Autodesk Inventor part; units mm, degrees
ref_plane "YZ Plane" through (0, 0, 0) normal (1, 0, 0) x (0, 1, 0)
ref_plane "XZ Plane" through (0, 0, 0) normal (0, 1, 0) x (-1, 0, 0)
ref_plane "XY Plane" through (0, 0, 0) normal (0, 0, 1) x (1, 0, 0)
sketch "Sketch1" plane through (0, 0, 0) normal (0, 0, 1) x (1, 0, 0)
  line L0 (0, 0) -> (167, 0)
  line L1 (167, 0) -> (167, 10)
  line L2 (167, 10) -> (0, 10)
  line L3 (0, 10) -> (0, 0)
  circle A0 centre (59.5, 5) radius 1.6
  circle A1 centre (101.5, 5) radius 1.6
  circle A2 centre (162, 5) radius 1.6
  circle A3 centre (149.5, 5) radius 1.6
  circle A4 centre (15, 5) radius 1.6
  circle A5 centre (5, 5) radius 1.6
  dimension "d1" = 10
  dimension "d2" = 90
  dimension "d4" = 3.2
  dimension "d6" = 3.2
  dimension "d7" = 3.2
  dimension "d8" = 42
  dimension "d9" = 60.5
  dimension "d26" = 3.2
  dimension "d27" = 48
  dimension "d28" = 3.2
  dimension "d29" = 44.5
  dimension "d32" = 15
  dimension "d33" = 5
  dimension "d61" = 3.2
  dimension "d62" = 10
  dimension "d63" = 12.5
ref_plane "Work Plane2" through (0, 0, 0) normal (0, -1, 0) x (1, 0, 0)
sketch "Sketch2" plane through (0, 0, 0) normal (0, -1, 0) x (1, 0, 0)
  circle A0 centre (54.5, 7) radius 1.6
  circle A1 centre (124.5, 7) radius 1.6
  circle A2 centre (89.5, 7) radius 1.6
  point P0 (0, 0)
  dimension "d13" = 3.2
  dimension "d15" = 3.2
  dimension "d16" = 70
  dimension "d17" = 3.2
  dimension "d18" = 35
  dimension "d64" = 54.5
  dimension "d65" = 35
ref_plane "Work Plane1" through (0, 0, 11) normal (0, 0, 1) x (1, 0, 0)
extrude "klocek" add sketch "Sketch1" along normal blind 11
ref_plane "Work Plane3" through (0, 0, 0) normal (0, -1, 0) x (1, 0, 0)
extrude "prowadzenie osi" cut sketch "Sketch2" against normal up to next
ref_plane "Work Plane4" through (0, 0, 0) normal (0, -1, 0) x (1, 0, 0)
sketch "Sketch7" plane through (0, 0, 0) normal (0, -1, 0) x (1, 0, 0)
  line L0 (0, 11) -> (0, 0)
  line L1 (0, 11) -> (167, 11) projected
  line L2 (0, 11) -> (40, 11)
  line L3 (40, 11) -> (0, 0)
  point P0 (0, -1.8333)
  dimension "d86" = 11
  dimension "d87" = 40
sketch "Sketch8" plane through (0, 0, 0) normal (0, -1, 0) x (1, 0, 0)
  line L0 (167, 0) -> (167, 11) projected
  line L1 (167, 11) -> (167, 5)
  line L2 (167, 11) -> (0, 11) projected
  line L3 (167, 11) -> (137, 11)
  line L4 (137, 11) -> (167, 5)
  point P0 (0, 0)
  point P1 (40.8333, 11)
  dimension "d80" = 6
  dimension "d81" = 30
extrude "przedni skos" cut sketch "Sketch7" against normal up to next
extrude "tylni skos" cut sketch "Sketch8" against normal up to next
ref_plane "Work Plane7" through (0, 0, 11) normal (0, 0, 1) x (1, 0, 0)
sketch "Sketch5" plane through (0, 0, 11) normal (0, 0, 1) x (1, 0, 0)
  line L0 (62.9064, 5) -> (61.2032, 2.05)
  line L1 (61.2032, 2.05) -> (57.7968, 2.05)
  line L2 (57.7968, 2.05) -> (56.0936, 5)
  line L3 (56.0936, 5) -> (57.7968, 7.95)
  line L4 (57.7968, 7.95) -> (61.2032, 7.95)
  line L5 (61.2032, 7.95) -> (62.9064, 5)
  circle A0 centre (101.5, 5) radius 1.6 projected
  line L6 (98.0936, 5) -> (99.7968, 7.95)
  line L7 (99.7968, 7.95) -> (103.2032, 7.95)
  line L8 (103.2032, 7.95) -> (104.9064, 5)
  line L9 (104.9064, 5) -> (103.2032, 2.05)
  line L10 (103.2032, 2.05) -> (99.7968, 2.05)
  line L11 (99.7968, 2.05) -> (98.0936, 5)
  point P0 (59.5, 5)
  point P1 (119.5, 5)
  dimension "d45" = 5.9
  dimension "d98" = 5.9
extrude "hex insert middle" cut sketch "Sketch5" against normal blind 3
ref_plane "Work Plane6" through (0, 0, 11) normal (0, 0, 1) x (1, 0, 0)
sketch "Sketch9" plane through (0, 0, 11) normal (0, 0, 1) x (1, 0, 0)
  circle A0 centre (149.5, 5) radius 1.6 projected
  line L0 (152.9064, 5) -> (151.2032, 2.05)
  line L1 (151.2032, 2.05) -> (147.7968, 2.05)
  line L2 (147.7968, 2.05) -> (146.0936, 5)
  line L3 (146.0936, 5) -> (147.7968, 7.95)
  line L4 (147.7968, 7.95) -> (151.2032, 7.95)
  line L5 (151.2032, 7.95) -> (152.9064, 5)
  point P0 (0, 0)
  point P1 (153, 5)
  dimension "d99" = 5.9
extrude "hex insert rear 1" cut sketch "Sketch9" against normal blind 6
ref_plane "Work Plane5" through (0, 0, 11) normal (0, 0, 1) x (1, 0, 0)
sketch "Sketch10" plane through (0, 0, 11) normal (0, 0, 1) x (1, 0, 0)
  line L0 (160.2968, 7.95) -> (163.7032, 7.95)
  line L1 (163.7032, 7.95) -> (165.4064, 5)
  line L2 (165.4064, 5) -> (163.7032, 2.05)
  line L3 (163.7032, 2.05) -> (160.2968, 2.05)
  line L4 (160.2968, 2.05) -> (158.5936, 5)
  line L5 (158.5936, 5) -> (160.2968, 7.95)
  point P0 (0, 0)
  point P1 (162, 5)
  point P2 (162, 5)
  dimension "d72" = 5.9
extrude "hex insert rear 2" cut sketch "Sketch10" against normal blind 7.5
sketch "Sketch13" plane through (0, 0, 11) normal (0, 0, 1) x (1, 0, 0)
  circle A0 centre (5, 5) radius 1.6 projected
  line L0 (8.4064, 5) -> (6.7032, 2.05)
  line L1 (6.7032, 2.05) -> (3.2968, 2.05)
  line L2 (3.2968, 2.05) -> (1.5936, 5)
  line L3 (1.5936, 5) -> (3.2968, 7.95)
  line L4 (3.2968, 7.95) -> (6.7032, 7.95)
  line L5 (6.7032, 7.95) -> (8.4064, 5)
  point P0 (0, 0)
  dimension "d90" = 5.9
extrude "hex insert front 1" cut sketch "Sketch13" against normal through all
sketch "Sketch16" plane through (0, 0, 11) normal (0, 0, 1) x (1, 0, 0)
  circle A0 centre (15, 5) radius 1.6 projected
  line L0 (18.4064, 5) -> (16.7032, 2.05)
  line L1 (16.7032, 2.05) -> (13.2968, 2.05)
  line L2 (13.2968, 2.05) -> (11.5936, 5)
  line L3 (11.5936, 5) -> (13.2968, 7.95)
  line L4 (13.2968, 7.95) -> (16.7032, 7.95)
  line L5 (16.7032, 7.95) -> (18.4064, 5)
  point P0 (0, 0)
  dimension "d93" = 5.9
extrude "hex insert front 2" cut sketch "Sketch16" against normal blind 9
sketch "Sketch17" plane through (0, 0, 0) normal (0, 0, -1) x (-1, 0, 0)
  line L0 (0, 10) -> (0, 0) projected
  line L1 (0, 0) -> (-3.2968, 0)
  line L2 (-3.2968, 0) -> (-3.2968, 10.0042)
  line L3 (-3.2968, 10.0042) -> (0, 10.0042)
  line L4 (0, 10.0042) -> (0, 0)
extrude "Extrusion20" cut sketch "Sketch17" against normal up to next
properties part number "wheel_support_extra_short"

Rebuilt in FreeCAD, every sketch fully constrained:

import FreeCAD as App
import Part
import Sketcher
Q = App.Units.Quantity


def add_polygon(sketch, points):
    """Adds a closed chain of lines whose ends are joined by coincident constraints."""
    first, n = sketch.GeometryCount, len(points)
    for a, b in zip(points, points[1:] + points[:1]):
        sketch.addGeometry(Part.LineSegment(App.Vector(*a, 0), App.Vector(*b, 0)), False)
    for i in range(n):
        sketch.addConstraint(Sketcher.Constraint("Coincident", first + i, 2, first + (i + 1) % n, 1))

doc = App.newDocument("Part")
body = doc.addObject("PartDesign::Body", "Body")

sketch1 = doc.addObject("Sketcher::SketchObject", "Sketch")
body.addObject(sketch1)
sketch1.AttachmentSupport = (doc.XY_Plane, [""])
sketch1.MapMode = "FlatFace"
add_polygon(sketch1, [(0, 10), (0, 0), (167, 0), (167, 10)])
sketch1.addGeometry(Part.Circle(App.Vector(5, 5, 0), App.Vector(0, 0, 1), 1.6), False)
sketch1.addGeometry(Part.Circle(App.Vector(15, 5, 0), App.Vector(0, 0, 1), 1.6), False)
sketch1.addGeometry(Part.Circle(App.Vector(59.5, 5, 0), App.Vector(0, 0, 1), 1.6), False)
sketch1.addGeometry(Part.Circle(App.Vector(101.5, 5, 0), App.Vector(0, 0, 1), 1.6), False)
sketch1.addGeometry(Part.Circle(App.Vector(149.5, 5, 0), App.Vector(0, 0, 1), 1.6), False)
sketch1.addGeometry(Part.Circle(App.Vector(162, 5, 0), App.Vector(0, 0, 1), 1.6), False)
sketch1.addConstraint(Sketcher.Constraint("Vertical", 0))
sketch1.addConstraint(Sketcher.Constraint("Horizontal", 1))
sketch1.addConstraint(Sketcher.Constraint("Vertical", 2))
sketch1.addConstraint(Sketcher.Constraint("Horizontal", 3))
sketch1.addConstraint(Sketcher.Constraint("Coincident", 0, 2, -1, 1))
sketch1.addConstraint(Sketcher.Constraint("Equal", 4, 5))
sketch1.addConstraint(Sketcher.Constraint("Equal", 5, 6))
sketch1.addConstraint(Sketcher.Constraint("Equal", 6, 7))
sketch1.addConstraint(Sketcher.Constraint("Equal", 7, 8))
sketch1.addConstraint(Sketcher.Constraint("Equal", 8, 9))
sketch1.addConstraint(Sketcher.Constraint("Horizontal", 4, 3, 5, 3))
sketch1.addConstraint(Sketcher.Constraint("Horizontal", 5, 3, 6, 3))
sketch1.addConstraint(Sketcher.Constraint("Horizontal", 6, 3, 7, 3))
sketch1.addConstraint(Sketcher.Constraint("Horizontal", 7, 3, 8, 3))
sketch1.addConstraint(Sketcher.Constraint("Horizontal", 8, 3, 9, 3))
sketch1.addConstraint(Sketcher.Constraint("Diameter", 4, 3.2))
sketch1.addConstraint(Sketcher.Constraint("DistanceY", 0, 2, 0, 1, 10.0))
sketch1.addConstraint(Sketcher.Constraint("DistanceX", -1, 1, 4, 3, 5.0))
sketch1.addConstraint(Sketcher.Constraint("DistanceY", -1, 1, 4, 3, 5.0))
sketch1.addConstraint(Sketcher.Constraint("DistanceX", -1, 1, 5, 3, 15.0))
sketch1.addConstraint(Sketcher.Constraint("DistanceX", 6, 3, 7, 3, 42.0))
sketch1.addConstraint(Sketcher.Constraint("DistanceX", 7, 3, 8, 3, 48.0))
sketch1.addConstraint(Sketcher.Constraint("DistanceX", 9, 3, 1, 2, 5.0))
sketch1.addConstraint(Sketcher.Constraint("DistanceX", 5, 3, 6, 3, 44.5))
sketch1.addConstraint(Sketcher.Constraint("DistanceX", 8, 3, 9, 3, 12.5))
pad1 = doc.addObject("PartDesign::Pad", "Pad")
body.addObject(pad1)
pad1.Profile = sketch1
pad1.Length = 11

sketch2 = doc.addObject("Sketcher::SketchObject", "Sketch001")
body.addObject(sketch2)
sketch2.AttachmentSupport = (doc.XZ_Plane, [""])
sketch2.MapMode = "FlatFace"
sketch2.addGeometry(Part.Circle(App.Vector(54.5, 7, 0), App.Vector(0, 0, 1), 1.6), False)
sketch2.addGeometry(Part.Circle(App.Vector(124.5, 7, 0), App.Vector(0, 0, 1), 1.6), False)
sketch2.addGeometry(Part.Circle(App.Vector(89.5, 7, 0), App.Vector(0, 0, 1), 1.6), False)
sketch2.addConstraint(Sketcher.Constraint("Equal", 0, 1))
sketch2.addConstraint(Sketcher.Constraint("Equal", 1, 2))
sketch2.addConstraint(Sketcher.Constraint("Horizontal", 0, 3, 1, 3))
sketch2.addConstraint(Sketcher.Constraint("Horizontal", 1, 3, 2, 3))
sketch2.addConstraint(Sketcher.Constraint("Diameter", 0, 3.2))
sketch2.addConstraint(Sketcher.Constraint("DistanceX", 0, 3, 1, 3, 70.0))
sketch2.addConstraint(Sketcher.Constraint("DistanceX", 0, 3, 2, 3, 35.0))
sketch2.addConstraint(Sketcher.Constraint("DistanceX", -1, 1, 0, 3, 54.5))
sketch2.addConstraint(Sketcher.Constraint("DistanceY", -1, 1, 0, 3, 7.0))
pocket1 = doc.addObject("PartDesign::Pocket", "Pocket")
body.addObject(pocket1)
pocket1.Profile = sketch2
pocket1.Type = "UpToFirst"

sketch3 = doc.addObject("Sketcher::SketchObject", "Sketch002")
body.addObject(sketch3)
sketch3.AttachmentSupport = (doc.XZ_Plane, [""])
sketch3.MapMode = "FlatFace"
add_polygon(sketch3, [(40, 11), (0, 11), (0, 0)])
sketch3.addConstraint(Sketcher.Constraint("Horizontal", 0))
sketch3.addConstraint(Sketcher.Constraint("Vertical", 1))
sketch3.addConstraint(Sketcher.Constraint("Coincident", 1, 2, -1, 1))
sketch3.addConstraint(Sketcher.Constraint("DistanceX", 0, 2, 0, 1, 40.0))
sketch3.addConstraint(Sketcher.Constraint("DistanceY", 1, 2, 1, 1, 11.0))
pocket2 = doc.addObject("PartDesign::Pocket", "Pocket001")
body.addObject(pocket2)
pocket2.Profile = sketch3
pocket2.Type = "UpToFirst"

sketch4 = doc.addObject("Sketcher::SketchObject", "Sketch003")
body.addObject(sketch4)
sketch4.AttachmentSupport = (doc.XZ_Plane, [""])
sketch4.MapMode = "FlatFace"
add_polygon(sketch4, [(137, 11), (167, 5), (167, 11)])
sketch4.addConstraint(Sketcher.Constraint("Vertical", 1))
sketch4.addConstraint(Sketcher.Constraint("Horizontal", 2))
sketch4.addConstraint(Sketcher.Constraint("DistanceX", 2, 2, 2, 1, 30.0))
sketch4.addConstraint(Sketcher.Constraint("DistanceY", 1, 1, 1, 2, 6.0))
sketch4.addConstraint(Sketcher.Constraint("DistanceX", -1, 1, 0, 2, 167.0))
sketch4.addConstraint(Sketcher.Constraint("DistanceY", -1, 1, 0, 2, 5.0))
pocket3 = doc.addObject("PartDesign::Pocket", "Pocket002")
body.addObject(pocket3)
pocket3.Profile = sketch4
pocket3.Type = "UpToFirst"

sketch5 = doc.addObject("Sketcher::SketchObject", "Sketch004")
body.addObject(sketch5)
sketch5.AttachmentSupport = (doc.XY_Plane, [""])
sketch5.MapMode = "FlatFace"
sketch5.AttachmentOffset = App.Placement(App.Vector(0, 0, 11), App.Rotation())
add_polygon(sketch5, [(61.2032, 2.05), (62.9064, 5), (61.2032, 7.95), (57.7968, 7.95), (56.0936, 5), (57.7968, 2.05)])
add_polygon(sketch5, [(99.7968, 7.95), (98.0936, 5), (99.7968, 2.05), (103.2032, 2.05), (104.9064, 5), (103.2032, 7.95)])
sketch5.addGeometry(Part.Circle(App.Vector(101.5, 5, 0), App.Vector(0, 0, 1), 1.6), False)
sketch5.addConstraint(Sketcher.Constraint("Horizontal", 2))
sketch5.addConstraint(Sketcher.Constraint("Horizontal", 5))
sketch5.addConstraint(Sketcher.Constraint("Horizontal", 8))
sketch5.addConstraint(Sketcher.Constraint("Horizontal", 11))
sketch5.addConstraint(Sketcher.Constraint("Parallel", 0, 3))
sketch5.addConstraint(Sketcher.Constraint("Parallel", 1, 4))
sketch5.addConstraint(Sketcher.Constraint("Parallel", 3, 6))
sketch5.addConstraint(Sketcher.Constraint("Parallel", 4, 7))
sketch5.addConstraint(Sketcher.Constraint("Parallel", 6, 9))
sketch5.addConstraint(Sketcher.Constraint("Parallel", 7, 10))
sketch5.addConstraint(Sketcher.Constraint("Horizontal", 12, 3, 0, 2))
sketch5.addConstraint(Sketcher.Constraint("Horizontal", 0, 2, 3, 2))
sketch5.addConstraint(Sketcher.Constraint("Horizontal", 3, 2, 6, 2))
sketch5.addConstraint(Sketcher.Constraint("Horizontal", 5, 2, 7, 2))
sketch5.addConstraint(Sketcher.Constraint("Horizontal", 6, 2, 9, 2))
sketch5.addConstraint(Sketcher.Constraint("Horizontal", 2, 2, 10, 2))
sketch5.addConstraint(Sketcher.Constraint("Vertical", 2, 2, 4, 2))
sketch5.addConstraint(Sketcher.Constraint("Vertical", 1, 2, 5, 2))
sketch5.addConstraint(Sketcher.Constraint("Equal", 5, 8))
sketch5.addConstraint(Sketcher.Constraint("Diameter", 12, 3.2))
sketch5.addConstraint(Sketcher.Constraint("DistanceY", 4, 2, 2, 2, 5.9))
sketch5.addConstraint(Sketcher.Constraint("Angle", 0, Q("59.9998 deg")))
sketch5.addConstraint(Sketcher.Constraint("DistanceY", -1, 1, 12, 3, 5.0))
sketch5.addConstraint(Sketcher.Constraint("DistanceX", 5, 2, 8, 2, 42.0))
sketch5.addConstraint(Sketcher.Constraint("DistanceX", -1, 1, 12, 3, 101.5))
sketch5.addConstraint(Sketcher.Constraint("DistanceX", 2, 2, 2, 1, 3.4064))
sketch5.addConstraint(Sketcher.Constraint("DistanceX", -1, 1, 0, 2, 62.9064))
pocket4 = doc.addObject("PartDesign::Pocket", "Pocket003")
body.addObject(pocket4)
pocket4.Profile = sketch5
pocket4.Length = 3

sketch6 = doc.addObject("Sketcher::SketchObject", "Sketch005")
body.addObject(sketch6)
sketch6.AttachmentSupport = (doc.XY_Plane, [""])
sketch6.MapMode = "FlatFace"
sketch6.AttachmentOffset = App.Placement(App.Vector(0, 0, 11), App.Rotation())
add_polygon(sketch6, [(151.2032, 2.05), (152.9064, 5), (151.2032, 7.95), (147.7968, 7.95), (146.0936, 5), (147.7968, 2.05)])
sketch6.addGeometry(Part.Circle(App.Vector(149.5, 5, 0), App.Vector(0, 0, 1), 1.6), False)
sketch6.addConstraint(Sketcher.Constraint("Horizontal", 2))
sketch6.addConstraint(Sketcher.Constraint("Horizontal", 5))
sketch6.addConstraint(Sketcher.Constraint("Parallel", 0, 3))
sketch6.addConstraint(Sketcher.Constraint("Parallel", 1, 4))
sketch6.addConstraint(Sketcher.Constraint("Horizontal", 6, 3, 0, 2))
sketch6.addConstraint(Sketcher.Constraint("Horizontal", 0, 2, 3, 2))
sketch6.addConstraint(Sketcher.Constraint("Vertical", 2, 2, 4, 2))
sketch6.addConstraint(Sketcher.Constraint("Vertical", 1, 2, 5, 2))
sketch6.addConstraint(Sketcher.Constraint("Diameter", 6, 3.2))
sketch6.addConstraint(Sketcher.Constraint("DistanceY", 4, 2, 2, 2, 5.9))
sketch6.addConstraint(Sketcher.Constraint("Angle", 0, Q("59.9998 deg")))
sketch6.addConstraint(Sketcher.Constraint("DistanceY", -1, 1, 6, 3, 5.0))
sketch6.addConstraint(Sketcher.Constraint("DistanceX", -1, 1, 6, 3, 149.5))
sketch6.addConstraint(Sketcher.Constraint("DistanceX", 2, 2, 2, 1, 3.4064))
sketch6.addConstraint(Sketcher.Constraint("DistanceX", -1, 1, 0, 2, 152.9064))
pocket5 = doc.addObject("PartDesign::Pocket", "Pocket004")
body.addObject(pocket5)
pocket5.Profile = sketch6
pocket5.Length = 6

sketch7 = doc.addObject("Sketcher::SketchObject", "Sketch006")
body.addObject(sketch7)
sketch7.AttachmentSupport = (doc.XY_Plane, [""])
sketch7.MapMode = "FlatFace"
sketch7.AttachmentOffset = App.Placement(App.Vector(0, 0, 11), App.Rotation())
add_polygon(sketch7, [(163.7032, 7.95), (160.2968, 7.95), (158.5936, 5), (160.2968, 2.05), (163.7032, 2.05), (165.4064, 5)])
sketch7.addConstraint(Sketcher.Constraint("Horizontal", 0))
sketch7.addConstraint(Sketcher.Constraint("Horizontal", 3))
sketch7.addConstraint(Sketcher.Constraint("Parallel", 1, 4))
sketch7.addConstraint(Sketcher.Constraint("Parallel", 2, 5))
sketch7.addConstraint(Sketcher.Constraint("Horizontal", 1, 2, 4, 2))
sketch7.addConstraint(Sketcher.Constraint("Vertical", 0, 2, 2, 2))
sketch7.addConstraint(Sketcher.Constraint("Vertical", 3, 2, 5, 2))
sketch7.addConstraint(Sketcher.Constraint("DistanceY", 2, 2, 0, 2, 5.9))
sketch7.addConstraint(Sketcher.Constraint("Angle", 1, Q("-120.0002 deg")))
sketch7.addConstraint(Sketcher.Constraint("DistanceY", -1, 1, 1, 2, 5.0))
sketch7.addConstraint(Sketcher.Constraint("DistanceX", 0, 2, 0, 1, 3.4064))
sketch7.addConstraint(Sketcher.Constraint("DistanceX", -1, 1, 0, 2, 160.2968))
pocket6 = doc.addObject("PartDesign::Pocket", "Pocket005")
body.addObject(pocket6)
pocket6.Profile = sketch7
pocket6.Length = 7.5

sketch8 = doc.addObject("Sketcher::SketchObject", "Sketch007")
body.addObject(sketch8)
sketch8.AttachmentSupport = (doc.XY_Plane, [""])
sketch8.MapMode = "FlatFace"
sketch8.AttachmentOffset = App.Placement(App.Vector(0, 0, 11), App.Rotation())
add_polygon(sketch8, [(6.7032, 2.05), (8.4064, 5), (6.7032, 7.95), (3.2968, 7.95), (1.5936, 5), (3.2968, 2.05)])
sketch8.addGeometry(Part.Circle(App.Vector(5, 5, 0), App.Vector(0, 0, 1), 1.6), False)
sketch8.addConstraint(Sketcher.Constraint("Horizontal", 2))
sketch8.addConstraint(Sketcher.Constraint("Horizontal", 5))
sketch8.addConstraint(Sketcher.Constraint("Parallel", 0, 3))
sketch8.addConstraint(Sketcher.Constraint("Parallel", 1, 4))
sketch8.addConstraint(Sketcher.Constraint("Horizontal", 6, 3, 0, 2))
sketch8.addConstraint(Sketcher.Constraint("Horizontal", 0, 2, 3, 2))
sketch8.addConstraint(Sketcher.Constraint("Vertical", 2, 2, 4, 2))
sketch8.addConstraint(Sketcher.Constraint("Vertical", 1, 2, 5, 2))
sketch8.addConstraint(Sketcher.Constraint("Diameter", 6, 3.2))
sketch8.addConstraint(Sketcher.Constraint("DistanceY", 4, 2, 2, 2, 5.9))
sketch8.addConstraint(Sketcher.Constraint("Angle", 0, Q("59.9998 deg")))
sketch8.addConstraint(Sketcher.Constraint("DistanceX", -1, 1, 6, 3, 5.0))
sketch8.addConstraint(Sketcher.Constraint("DistanceY", -1, 1, 6, 3, 5.0))
sketch8.addConstraint(Sketcher.Constraint("DistanceX", 2, 2, 2, 1, 3.4064))
sketch8.addConstraint(Sketcher.Constraint("DistanceX", -1, 1, 0, 2, 8.4064))
pocket7 = doc.addObject("PartDesign::Pocket", "Pocket006")
body.addObject(pocket7)
pocket7.Profile = sketch8
pocket7.Type = "ThroughAll"

sketch9 = doc.addObject("Sketcher::SketchObject", "Sketch008")
body.addObject(sketch9)
sketch9.AttachmentSupport = (doc.XY_Plane, [""])
sketch9.MapMode = "FlatFace"
sketch9.AttachmentOffset = App.Placement(App.Vector(0, 0, 11), App.Rotation())
add_polygon(sketch9, [(16.7032, 2.05), (18.4064, 5), (16.7032, 7.95), (13.2968, 7.95), (11.5936, 5), (13.2968, 2.05)])
sketch9.addGeometry(Part.Circle(App.Vector(15, 5, 0), App.Vector(0, 0, 1), 1.6), False)
sketch9.addConstraint(Sketcher.Constraint("Horizontal", 2))
sketch9.addConstraint(Sketcher.Constraint("Horizontal", 5))
sketch9.addConstraint(Sketcher.Constraint("Parallel", 0, 3))
sketch9.addConstraint(Sketcher.Constraint("Parallel", 1, 4))
sketch9.addConstraint(Sketcher.Constraint("Horizontal", 6, 3, 0, 2))
sketch9.addConstraint(Sketcher.Constraint("Horizontal", 0, 2, 3, 2))
sketch9.addConstraint(Sketcher.Constraint("Vertical", 2, 2, 4, 2))
sketch9.addConstraint(Sketcher.Constraint("Vertical", 1, 2, 5, 2))
sketch9.addConstraint(Sketcher.Constraint("Diameter", 6, 3.2))
sketch9.addConstraint(Sketcher.Constraint("DistanceY", 4, 2, 2, 2, 5.9))
sketch9.addConstraint(Sketcher.Constraint("Angle", 0, Q("59.9998 deg")))
sketch9.addConstraint(Sketcher.Constraint("DistanceX", -1, 1, 6, 3, 15.0))
sketch9.addConstraint(Sketcher.Constraint("DistanceY", -1, 1, 6, 3, 5.0))
sketch9.addConstraint(Sketcher.Constraint("DistanceX", 2, 2, 2, 1, 3.4064))
sketch9.addConstraint(Sketcher.Constraint("DistanceX", -1, 1, 0, 2, 18.4064))
pocket8 = doc.addObject("PartDesign::Pocket", "Pocket007")
body.addObject(pocket8)
pocket8.Profile = sketch9
pocket8.Length = 9

sketch10 = doc.addObject("Sketcher::SketchObject", "Sketch009")
body.addObject(sketch10)
sketch10.AttachmentSupport = (doc.XY_Plane, [""])
sketch10.MapMode = "FlatFace"
add_polygon(sketch10, [(0, 0), (0, 10.0042), (3.2968, 10.0042), (3.2968, 0)])
sketch10.addConstraint(Sketcher.Constraint("Vertical", 0))
sketch10.addConstraint(Sketcher.Constraint("Horizontal", 1))
sketch10.addConstraint(Sketcher.Constraint("Vertical", 2))
sketch10.addConstraint(Sketcher.Constraint("Horizontal", 3))
sketch10.addConstraint(Sketcher.Constraint("Coincident", 3, 2, -1, 1))
sketch10.addConstraint(Sketcher.Constraint("DistanceX", 1, 1, 1, 2, 3.2968))
sketch10.addConstraint(Sketcher.Constraint("DistanceY", 0, 1, 0, 2, 10.0042))
pocket9 = doc.addObject("PartDesign::Pocket", "Pocket008")
body.addObject(pocket9)
pocket9.Profile = sketch10
pocket9.Length = 0.9066
pocket9.Reversed = True

doc.recompute()
